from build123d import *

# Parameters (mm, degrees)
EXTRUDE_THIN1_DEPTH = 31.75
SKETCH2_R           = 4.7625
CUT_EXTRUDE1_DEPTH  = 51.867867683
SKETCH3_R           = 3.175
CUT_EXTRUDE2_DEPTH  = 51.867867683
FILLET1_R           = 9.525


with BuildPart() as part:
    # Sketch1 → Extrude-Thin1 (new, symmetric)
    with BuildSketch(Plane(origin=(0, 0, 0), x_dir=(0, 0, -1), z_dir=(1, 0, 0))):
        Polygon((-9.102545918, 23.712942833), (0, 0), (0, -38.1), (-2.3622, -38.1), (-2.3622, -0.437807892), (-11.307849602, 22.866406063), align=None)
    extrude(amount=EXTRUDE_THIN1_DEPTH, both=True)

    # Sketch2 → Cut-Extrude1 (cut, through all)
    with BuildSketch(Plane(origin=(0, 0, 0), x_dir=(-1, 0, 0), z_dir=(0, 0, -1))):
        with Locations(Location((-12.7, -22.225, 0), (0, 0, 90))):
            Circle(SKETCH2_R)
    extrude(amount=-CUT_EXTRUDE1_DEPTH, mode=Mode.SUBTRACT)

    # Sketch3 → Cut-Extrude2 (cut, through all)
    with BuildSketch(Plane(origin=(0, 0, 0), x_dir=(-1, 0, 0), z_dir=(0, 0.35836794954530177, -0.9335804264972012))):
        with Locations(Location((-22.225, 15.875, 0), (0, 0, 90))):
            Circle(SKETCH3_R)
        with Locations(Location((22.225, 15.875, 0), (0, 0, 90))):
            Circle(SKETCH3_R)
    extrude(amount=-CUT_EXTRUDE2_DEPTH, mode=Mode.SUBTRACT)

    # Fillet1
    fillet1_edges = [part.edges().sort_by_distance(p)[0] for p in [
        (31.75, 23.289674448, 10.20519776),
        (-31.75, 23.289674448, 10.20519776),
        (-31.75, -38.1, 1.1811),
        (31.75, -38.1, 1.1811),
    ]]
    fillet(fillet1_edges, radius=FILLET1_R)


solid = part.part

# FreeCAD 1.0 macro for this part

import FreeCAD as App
import Part
import Sketcher

V = App.Vector
Q = App.Units.Quantity


def edges_at(feature, points):
    """Names of the edges that pass closest to the given points."""
    edges = feature.Shape.Edges
    near = lambda p: min(range(len(edges)), key=lambda i: edges[i].distToShape(Part.Vertex(*p))[0])
    return sorted({f"Edge{near(p) + 1}" for p in points})


def add_polygon(sketch, points):
    """Adds a closed chain of lines whose ends are joined by coincident constraints."""
    first, n = sketch.GeometryCount, len(points)
    for a, b in zip(points, points[1:] + points[:1]):
        sketch.addGeometry(Part.LineSegment(App.Vector(*a, 0), App.Vector(*b, 0)), False)
    for i in range(n):
        sketch.addConstraint(Sketcher.Constraint("Coincident", first + i, 2, first + (i + 1) % n, 1))

doc = App.newDocument("Part")
params = doc.addObject("Spreadsheet::Sheet", "Params")
for row, (alias, value) in enumerate([
    ("sketch1_length", "1 in"),
    ("sketch1_width", "1.5 in"),
    ("sketch1_height", "0.093 in"),
    ("sketch1_length2", "0.093 in"),
    ("pad1_length", "2.5 in"),
    ("sketch2_diameter", "0.375 in"),
    ("sketch3_diameter", "0.25 in"),
    ("fillet_radius", "0.375 in"),
], start=1):
    params.set(f"A{row}", alias)
    params.set(f"B{row}", "=" + value)
    params.setAlias(f"B{row}", alias)

body = doc.addObject("PartDesign::Body", "Body")

sketch1 = body.newObject("Sketcher::SketchObject", "Sketch")
sketch1.AttachmentSupport = (doc.getObject("YZ_Plane"), [""])
sketch1.MapMode = "FlatFace"
add_polygon(sketch1, [(0, 0), (23.7, 9.1), (22.9, 11.3), (-0.4, 2.4), (-38.1, 2.4), (-38.1, 0)])
sketch1.addConstraint([
    Sketcher.Constraint("Horizontal", 3),
    Sketcher.Constraint("Vertical", 4),
    Sketcher.Constraint("Horizontal", 5),
    Sketcher.Constraint("Coincident", 5, 2, -1, 1),
    Sketcher.Constraint("Perpendicular", 0, 1),
    Sketcher.Constraint("Perpendicular", 1, 2),
    Sketcher.Constraint("Distance", 0, Q("1 in")),
    Sketcher.Constraint("DistanceX", 5, 1, 5, 2, Q("1.5 in")),
    Sketcher.Constraint("Angle", 0, Q("21 deg")),
    Sketcher.Constraint("DistanceY", 4, 2, 4, 1, Q("0.093 in")),
    Sketcher.Constraint("Distance", 1, Q("0.093 in")),
])
sketch1.setExpression("Constraints[12]", "Params.sketch1_length")
sketch1.setExpression("Constraints[13]", "Params.sketch1_width")
sketch1.setExpression("Constraints[15]", "Params.sketch1_height")
sketch1.setExpression("Constraints[16]", "Params.sketch1_length2")
pad1 = body.newObject("PartDesign::Pad", "Pad")
pad1.Profile = sketch1
pad1.setExpression("Length", "Params.pad1_length")
pad1.Midplane = True

sketch2 = body.newObject("Sketcher::SketchObject", "Sketch001")
sketch2.AttachmentSupport = (doc.getObject("XY_Plane"), [""])
sketch2.MapMode = "FlatFace"
sketch2.addGeometry(Part.Circle(V(12.7, -22.2, 0), V(0, 0, 1), 4.8), False)
sketch2.addConstraint([
    Sketcher.Constraint("Diameter", 0, Q("0.375 in")),
    Sketcher.Constraint("DistanceX", -1, 1, 0, 3, Q("0.5 in")),
    Sketcher.Constraint("DistanceY", 0, 3, -1, 1, Q("0.875 in")),
])
sketch2.setExpression("Constraints[0]", "Params.sketch2_diameter")
pocket1 = body.newObject("PartDesign::Pocket", "Pocket")
pocket1.Profile = sketch2
pocket1.Type = "ThroughAll"
pocket1.Reversed = True

sketch3 = body.newObject("Sketcher::SketchObject", "Sketch002")
sketch3.Placement = App.Placement(V(0, 0, 0), App.Rotation(V(-1, 0, 0), V(0, 0.933580426, 0.35836795), V(0, 0.35836795, -0.933580426), "ZXY"))
sketch3.addGeometry([
    Part.Circle(V(-22.2, 15.9, 0), V(0, 0, 1), 3.2),
    Part.Circle(V(22.2, 15.9, 0), V(0, 0, 1), 3.2),
], False)
sketch3.addConstraint([
    Sketcher.Constraint("Equal", 0, 1),
    Sketcher.Constraint("Symmetric", 0, 3, 1, 3, -2),
    Sketcher.Constraint("Diameter", 0, Q("0.25 in")),
    Sketcher.Constraint("DistanceX", 0, 3, 1, 3, Q("1.75 in")),
    Sketcher.Constraint("DistanceY", -1, 1, 0, 3, Q("0.625 in")),
])
sketch3.setExpression("Constraints[2]", "Params.sketch3_diameter")
pocket2 = body.newObject("PartDesign::Pocket", "Pocket001")
pocket2.Profile = sketch3
pocket2.Type = "ThroughAll"
doc.recompute()

fillet = body.newObject("PartDesign::Fillet", "Fillet")
fillet.Base = (pocket2, edges_at(pocket2, [
    (31.75, 23.29, 10.205),
    (-31.75, 23.29, 10.205),
    (-31.75, -38.1, 1.181),
    (31.75, -38.1, 1.181),
]))
fillet.setExpression("Radius", "Params.fillet_radius")

doc.recompute()
